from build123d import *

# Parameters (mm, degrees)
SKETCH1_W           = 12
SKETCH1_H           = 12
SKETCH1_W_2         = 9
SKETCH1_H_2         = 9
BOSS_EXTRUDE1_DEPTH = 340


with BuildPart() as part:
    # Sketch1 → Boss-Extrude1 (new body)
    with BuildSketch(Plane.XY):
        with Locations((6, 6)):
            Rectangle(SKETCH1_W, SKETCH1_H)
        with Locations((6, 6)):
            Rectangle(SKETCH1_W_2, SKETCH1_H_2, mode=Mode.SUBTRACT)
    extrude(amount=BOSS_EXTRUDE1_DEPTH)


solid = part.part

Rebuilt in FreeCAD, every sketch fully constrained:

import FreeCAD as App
import Part
import Sketcher

V = App.Vector

doc = App.newDocument("Part")
params = doc.addObject("Spreadsheet::Sheet", "Params")
for row, (alias, value) in enumerate([
    ("sketch1_width", "12 mm"),
    ("sketch1_width2", "9 mm"),
    ("pad1_length", "340 mm"),
], start=1):
    params.set(f"A{row}", alias)
    params.set(f"B{row}", "=" + value)
    params.setAlias(f"B{row}", alias)

body = doc.addObject("PartDesign::Body", "Body")

# Sketch on XY plane
sketch1 = body.newObject("Sketcher::SketchObject", "Sketch")
sketch1.AttachmentSupport = (doc.getObject("XY_Plane"), [""])
sketch1.MapMode = "FlatFace"
sketch1.addGeometry([
    Part.LineSegment(V(0, 12, 0), V(0, 0, 0)),  # 0
    Part.LineSegment(V(0, 0, 0), V(12, 0, 0)),  # 1
    Part.LineSegment(V(12, 0, 0), V(12, 12, 0)),  # 2
    Part.LineSegment(V(12, 12, 0), V(0, 12, 0)),  # 3
    Part.LineSegment(V(10.5, 1.5, 0), V(1.5, 1.5, 0)),  # 4
    Part.LineSegment(V(1.5, 1.5, 0), V(1.5, 10.5, 0)),  # 5
    Part.LineSegment(V(1.5, 10.5, 0), V(10.5, 10.5, 0)),  # 6
    Part.LineSegment(V(10.5, 10.5, 0), V(10.5, 1.5, 0)),  # 7
], False)
sketch1.addConstraint([
    Sketcher.Constraint("Coincident", 0, 2, 1, 1),
    Sketcher.Constraint("Coincident", 1, 2, 2, 1),
    Sketcher.Constraint("Coincident", 2, 2, 3, 1),
    Sketcher.Constraint("Coincident", 3, 2, 0, 1),
    Sketcher.Constraint("Coincident", 4, 2, 5, 1),
    Sketcher.Constraint("Coincident", 5, 2, 6, 1),
    Sketcher.Constraint("Coincident", 6, 2, 7, 1),
    Sketcher.Constraint("Coincident", 7, 2, 4, 1),
    Sketcher.Constraint("Vertical", 0),
    Sketcher.Constraint("Horizontal", 1),
    Sketcher.Constraint("Vertical", 2),
    Sketcher.Constraint("Horizontal", 3),
    Sketcher.Constraint("Horizontal", 4),
    Sketcher.Constraint("Vertical", 5),
    Sketcher.Constraint("Horizontal", 6),
    Sketcher.Constraint("Vertical", 7),
    Sketcher.Constraint("Coincident", 0, 2, -1, 1),
    Sketcher.Constraint("Equal", 3, 0),
    Sketcher.Constraint("Equal", 6, 5),
    Sketcher.Constraint("DistanceX", 1, 1, 1, 2, 12.0),
    Sketcher.Constraint("DistanceX", 4, 2, 4, 1, 9.0),
    Sketcher.Constraint("DistanceX", -1, 1, 4, 2, 1.5),
    Sketcher.Constraint("DistanceY", -1, 1, 4, 2, 1.5),
])
sketch1.setExpression("Constraints[19]", "Params.sketch1_width")
sketch1.setExpression("Constraints[20]", "Params.sketch1_width2")
pad1 = body.newObject("PartDesign::Pad", "Pad")
pad1.Profile = sketch1
pad1.setExpression("Length", "Params.pad1_length")

doc.recompute()
